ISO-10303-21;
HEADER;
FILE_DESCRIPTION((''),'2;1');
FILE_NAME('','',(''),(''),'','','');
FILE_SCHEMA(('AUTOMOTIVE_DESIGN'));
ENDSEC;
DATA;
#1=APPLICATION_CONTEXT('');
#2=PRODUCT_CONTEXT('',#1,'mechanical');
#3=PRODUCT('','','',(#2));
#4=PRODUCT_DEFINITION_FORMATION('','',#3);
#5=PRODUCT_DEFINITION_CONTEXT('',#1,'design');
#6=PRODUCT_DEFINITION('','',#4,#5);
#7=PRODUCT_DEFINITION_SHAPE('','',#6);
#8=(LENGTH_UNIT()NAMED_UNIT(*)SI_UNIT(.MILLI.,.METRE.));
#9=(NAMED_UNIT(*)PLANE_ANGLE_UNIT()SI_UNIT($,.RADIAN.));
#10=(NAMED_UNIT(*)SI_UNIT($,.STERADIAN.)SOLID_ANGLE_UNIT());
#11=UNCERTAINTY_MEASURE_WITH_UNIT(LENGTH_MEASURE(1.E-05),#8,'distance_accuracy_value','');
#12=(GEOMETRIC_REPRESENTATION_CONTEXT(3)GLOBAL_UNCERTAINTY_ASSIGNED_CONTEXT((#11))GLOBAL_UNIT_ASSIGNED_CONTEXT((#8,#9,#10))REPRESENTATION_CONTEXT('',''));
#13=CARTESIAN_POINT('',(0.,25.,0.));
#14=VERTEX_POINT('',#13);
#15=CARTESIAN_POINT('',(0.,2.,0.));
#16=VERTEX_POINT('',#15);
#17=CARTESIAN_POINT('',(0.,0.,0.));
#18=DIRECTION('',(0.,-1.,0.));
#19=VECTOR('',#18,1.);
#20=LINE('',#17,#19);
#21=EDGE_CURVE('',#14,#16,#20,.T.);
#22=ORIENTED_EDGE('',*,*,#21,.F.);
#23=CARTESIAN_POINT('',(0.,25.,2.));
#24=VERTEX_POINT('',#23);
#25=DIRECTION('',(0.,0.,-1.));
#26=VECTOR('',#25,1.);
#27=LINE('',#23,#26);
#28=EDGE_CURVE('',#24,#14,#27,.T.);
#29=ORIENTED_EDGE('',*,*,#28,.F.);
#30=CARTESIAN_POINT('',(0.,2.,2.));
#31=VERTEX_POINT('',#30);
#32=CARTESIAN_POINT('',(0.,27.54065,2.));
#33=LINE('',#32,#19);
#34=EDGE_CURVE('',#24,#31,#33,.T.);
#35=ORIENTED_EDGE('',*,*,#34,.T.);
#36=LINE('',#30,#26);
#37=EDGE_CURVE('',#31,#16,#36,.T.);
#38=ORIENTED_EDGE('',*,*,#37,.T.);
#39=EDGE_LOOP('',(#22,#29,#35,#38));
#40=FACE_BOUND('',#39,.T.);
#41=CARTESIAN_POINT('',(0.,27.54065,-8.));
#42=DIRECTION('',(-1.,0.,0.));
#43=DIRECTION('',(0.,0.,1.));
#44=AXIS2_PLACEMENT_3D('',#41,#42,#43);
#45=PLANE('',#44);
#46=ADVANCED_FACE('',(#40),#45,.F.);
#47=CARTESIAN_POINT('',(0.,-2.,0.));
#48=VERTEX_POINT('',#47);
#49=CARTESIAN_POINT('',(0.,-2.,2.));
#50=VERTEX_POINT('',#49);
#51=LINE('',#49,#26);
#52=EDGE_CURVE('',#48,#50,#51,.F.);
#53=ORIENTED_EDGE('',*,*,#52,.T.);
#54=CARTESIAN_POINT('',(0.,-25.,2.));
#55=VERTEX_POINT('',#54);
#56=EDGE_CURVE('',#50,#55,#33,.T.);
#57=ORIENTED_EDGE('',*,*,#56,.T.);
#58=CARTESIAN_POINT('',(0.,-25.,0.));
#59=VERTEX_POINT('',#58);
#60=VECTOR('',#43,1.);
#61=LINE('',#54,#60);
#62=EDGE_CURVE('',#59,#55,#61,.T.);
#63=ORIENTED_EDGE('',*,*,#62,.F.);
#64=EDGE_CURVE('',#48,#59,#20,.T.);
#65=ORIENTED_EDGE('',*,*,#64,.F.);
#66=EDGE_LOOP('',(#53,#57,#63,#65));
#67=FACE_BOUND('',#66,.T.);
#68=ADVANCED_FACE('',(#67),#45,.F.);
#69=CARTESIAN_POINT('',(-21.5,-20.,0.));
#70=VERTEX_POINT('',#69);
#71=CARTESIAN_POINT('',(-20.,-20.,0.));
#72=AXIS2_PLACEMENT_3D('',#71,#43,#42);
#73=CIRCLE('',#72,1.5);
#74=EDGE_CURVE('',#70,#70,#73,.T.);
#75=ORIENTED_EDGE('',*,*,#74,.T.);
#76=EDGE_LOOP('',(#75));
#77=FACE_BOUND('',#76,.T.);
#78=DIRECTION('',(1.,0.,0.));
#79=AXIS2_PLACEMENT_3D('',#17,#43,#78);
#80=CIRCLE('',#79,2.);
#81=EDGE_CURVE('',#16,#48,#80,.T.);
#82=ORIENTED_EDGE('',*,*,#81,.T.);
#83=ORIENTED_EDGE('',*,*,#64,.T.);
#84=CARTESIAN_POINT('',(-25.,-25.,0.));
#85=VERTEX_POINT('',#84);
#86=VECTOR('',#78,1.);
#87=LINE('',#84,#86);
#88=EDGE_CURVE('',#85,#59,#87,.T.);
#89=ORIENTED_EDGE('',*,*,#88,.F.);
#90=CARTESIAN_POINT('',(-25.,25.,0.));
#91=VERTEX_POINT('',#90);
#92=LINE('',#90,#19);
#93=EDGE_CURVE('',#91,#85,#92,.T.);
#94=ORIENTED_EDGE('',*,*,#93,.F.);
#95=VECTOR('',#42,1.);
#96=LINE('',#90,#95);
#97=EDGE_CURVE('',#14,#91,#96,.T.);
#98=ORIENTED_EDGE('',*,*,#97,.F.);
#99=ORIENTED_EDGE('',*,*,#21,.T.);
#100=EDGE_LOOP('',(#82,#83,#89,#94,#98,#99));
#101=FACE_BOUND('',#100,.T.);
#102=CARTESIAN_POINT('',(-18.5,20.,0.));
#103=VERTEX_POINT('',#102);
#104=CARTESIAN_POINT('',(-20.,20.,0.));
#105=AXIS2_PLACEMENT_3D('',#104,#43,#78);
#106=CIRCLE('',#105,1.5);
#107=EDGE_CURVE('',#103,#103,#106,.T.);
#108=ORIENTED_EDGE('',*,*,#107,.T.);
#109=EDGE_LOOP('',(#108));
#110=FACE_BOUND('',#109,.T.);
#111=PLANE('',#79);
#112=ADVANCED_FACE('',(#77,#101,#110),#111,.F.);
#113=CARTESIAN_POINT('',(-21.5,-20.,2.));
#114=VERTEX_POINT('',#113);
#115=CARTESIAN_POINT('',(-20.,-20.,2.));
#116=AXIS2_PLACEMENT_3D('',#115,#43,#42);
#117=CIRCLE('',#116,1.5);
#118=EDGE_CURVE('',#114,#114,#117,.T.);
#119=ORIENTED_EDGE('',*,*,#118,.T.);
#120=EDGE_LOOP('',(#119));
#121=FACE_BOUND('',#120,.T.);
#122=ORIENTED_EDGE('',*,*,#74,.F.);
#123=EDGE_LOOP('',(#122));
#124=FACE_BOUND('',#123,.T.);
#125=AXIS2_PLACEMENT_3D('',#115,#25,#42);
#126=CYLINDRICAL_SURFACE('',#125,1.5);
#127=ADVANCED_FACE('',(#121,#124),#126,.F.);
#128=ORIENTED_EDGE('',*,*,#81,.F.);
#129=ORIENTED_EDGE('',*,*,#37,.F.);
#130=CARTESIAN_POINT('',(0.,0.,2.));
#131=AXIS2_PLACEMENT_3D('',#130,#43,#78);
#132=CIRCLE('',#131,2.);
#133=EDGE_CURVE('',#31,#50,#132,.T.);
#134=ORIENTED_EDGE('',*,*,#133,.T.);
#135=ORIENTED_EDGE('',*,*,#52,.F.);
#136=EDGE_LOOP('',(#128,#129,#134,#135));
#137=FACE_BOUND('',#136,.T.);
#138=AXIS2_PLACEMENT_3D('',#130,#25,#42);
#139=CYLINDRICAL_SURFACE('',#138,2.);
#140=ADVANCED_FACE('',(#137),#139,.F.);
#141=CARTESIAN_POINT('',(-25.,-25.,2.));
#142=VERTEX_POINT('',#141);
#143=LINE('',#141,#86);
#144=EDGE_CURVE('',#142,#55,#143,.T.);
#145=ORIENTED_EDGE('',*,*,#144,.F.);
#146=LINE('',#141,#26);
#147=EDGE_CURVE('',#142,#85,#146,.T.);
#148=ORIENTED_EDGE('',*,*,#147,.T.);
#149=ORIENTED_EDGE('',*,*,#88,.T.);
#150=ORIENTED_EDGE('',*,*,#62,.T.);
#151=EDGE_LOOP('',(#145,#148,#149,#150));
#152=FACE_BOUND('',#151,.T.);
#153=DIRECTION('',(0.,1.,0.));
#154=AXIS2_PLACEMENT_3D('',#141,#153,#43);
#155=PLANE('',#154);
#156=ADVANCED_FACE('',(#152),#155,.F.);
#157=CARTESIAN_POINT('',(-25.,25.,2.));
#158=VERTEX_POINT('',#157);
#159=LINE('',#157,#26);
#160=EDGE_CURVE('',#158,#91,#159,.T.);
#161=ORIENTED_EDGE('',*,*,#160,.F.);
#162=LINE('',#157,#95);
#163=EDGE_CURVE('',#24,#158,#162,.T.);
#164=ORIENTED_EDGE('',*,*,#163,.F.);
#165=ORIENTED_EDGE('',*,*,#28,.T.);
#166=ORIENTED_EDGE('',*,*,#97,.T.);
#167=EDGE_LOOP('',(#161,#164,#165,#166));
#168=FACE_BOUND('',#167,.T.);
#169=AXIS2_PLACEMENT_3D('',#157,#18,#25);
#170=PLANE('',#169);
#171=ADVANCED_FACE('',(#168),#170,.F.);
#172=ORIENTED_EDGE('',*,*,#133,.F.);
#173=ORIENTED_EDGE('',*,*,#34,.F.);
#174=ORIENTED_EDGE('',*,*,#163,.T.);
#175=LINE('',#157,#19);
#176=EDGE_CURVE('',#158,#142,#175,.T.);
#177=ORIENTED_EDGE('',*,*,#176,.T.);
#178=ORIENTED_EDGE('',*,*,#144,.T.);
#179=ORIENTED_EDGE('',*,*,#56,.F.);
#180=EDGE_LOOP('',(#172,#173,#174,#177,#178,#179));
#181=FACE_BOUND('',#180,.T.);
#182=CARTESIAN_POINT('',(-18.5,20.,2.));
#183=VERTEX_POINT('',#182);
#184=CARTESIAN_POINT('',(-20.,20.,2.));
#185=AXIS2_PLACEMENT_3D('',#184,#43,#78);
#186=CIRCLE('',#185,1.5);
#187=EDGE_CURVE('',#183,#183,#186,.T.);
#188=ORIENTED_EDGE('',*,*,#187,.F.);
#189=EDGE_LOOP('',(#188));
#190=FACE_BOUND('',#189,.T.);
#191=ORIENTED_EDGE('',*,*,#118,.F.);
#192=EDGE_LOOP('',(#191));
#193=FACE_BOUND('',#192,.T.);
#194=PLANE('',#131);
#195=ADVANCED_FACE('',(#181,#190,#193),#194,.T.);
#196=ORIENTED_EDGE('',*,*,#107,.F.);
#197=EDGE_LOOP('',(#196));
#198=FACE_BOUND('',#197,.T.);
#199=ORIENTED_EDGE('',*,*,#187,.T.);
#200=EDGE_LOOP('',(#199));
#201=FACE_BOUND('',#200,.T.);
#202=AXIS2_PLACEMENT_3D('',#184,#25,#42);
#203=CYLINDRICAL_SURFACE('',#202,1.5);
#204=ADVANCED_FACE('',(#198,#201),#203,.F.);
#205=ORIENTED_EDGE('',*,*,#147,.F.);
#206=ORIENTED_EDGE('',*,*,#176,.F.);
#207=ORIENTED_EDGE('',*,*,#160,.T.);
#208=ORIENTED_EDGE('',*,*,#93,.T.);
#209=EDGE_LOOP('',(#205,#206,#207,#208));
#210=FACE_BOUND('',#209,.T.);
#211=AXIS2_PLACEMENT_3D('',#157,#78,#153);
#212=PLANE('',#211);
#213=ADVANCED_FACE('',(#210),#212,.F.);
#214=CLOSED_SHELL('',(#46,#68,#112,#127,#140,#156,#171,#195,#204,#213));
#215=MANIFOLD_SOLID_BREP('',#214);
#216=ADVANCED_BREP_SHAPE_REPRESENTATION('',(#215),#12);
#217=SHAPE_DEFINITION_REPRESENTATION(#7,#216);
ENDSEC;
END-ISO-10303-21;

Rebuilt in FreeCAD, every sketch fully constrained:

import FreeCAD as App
import Part
import Sketcher
from FreeCAD import Vector

doc = App.newDocument("Part")
params = doc.addObject("Spreadsheet::Sheet", "Params")
for row, (alias, value) in enumerate([
    ("sketch1_diameter", "3 mm"),
    ("sketch1_diameter2", "4 mm"),
    ("sketch1_width", "50 mm"),
    ("pad1_length", "2 mm"),
    ("pocket1_length", "10 mm"),
], start=1):
    params.set(f"A{row}", alias)
    params.set(f"B{row}", "=" + value)
    params.setAlias(f"B{row}", alias)

body = doc.addObject("PartDesign::Body", "Body")

sketch1 = doc.addObject("Sketcher::SketchObject", "Sketch")
body.addObject(sketch1)
sketch1.AttachmentSupport = (doc.XY_Plane, [""])
sketch1.MapMode = "FlatFace"
sketch1.addGeometry([
    Part.LineSegment(Vector(-25, 25, 0), Vector(-25, -25, 0)),
    Part.LineSegment(Vector(-25, -25, 0), Vector(25, -25, 0)),
    Part.LineSegment(Vector(25, -25, 0), Vector(25, 25, 0)),
    Part.LineSegment(Vector(25, 25, 0), Vector(-25, 25, 0)),
    Part.Circle(Vector(-20, -20, 0), Vector(0, 0, 1), 1.5),
    Part.Circle(Vector(20, -20, 0), Vector(0, 0, 1), 1.5),
    Part.Circle(Vector(-20, 20, 0), Vector(0, 0, 1), 1.5),
    Part.Circle(Vector(0, 0, 0), Vector(0, 0, 1), 2),
    Part.Circle(Vector(20, 20, 0), Vector(0, 0, 1), 1.5),
], False)
sketch1.addConstraint([
    Sketcher.Constraint("Coincident", 0, 2, 1, 1),
    Sketcher.Constraint("Coincident", 1, 2, 2, 1),
    Sketcher.Constraint("Coincident", 2, 2, 3, 1),
    Sketcher.Constraint("Coincident", 3, 2, 0, 1),
    Sketcher.Constraint("Vertical", 0),
    Sketcher.Constraint("Horizontal", 1),
    Sketcher.Constraint("Vertical", 2),
    Sketcher.Constraint("Horizontal", 3),
    Sketcher.Constraint("Coincident", 7, 3, -1, 1),
    Sketcher.Constraint("Equal", 4, 5),
    Sketcher.Constraint("Equal", 5, 6),
    Sketcher.Constraint("Equal", 6, 8),
    Sketcher.Constraint("Symmetric", 5, 3, 6, 3, -1, 1),
    Sketcher.Constraint("Symmetric", 4, 3, 8, 3, -1, 1),
    Sketcher.Constraint("Symmetric", 0, 2, 2, 2, -1, 1),
    Sketcher.Constraint("Symmetric", 4, 3, 5, 3, -2),
    Sketcher.Constraint("Equal", 3, 0),
    Sketcher.Constraint("Diameter", 4, 3.0),
    Sketcher.Constraint("Diameter", 7, 4.0),
    Sketcher.Constraint("DistanceX", 1, 1, 1, 2, 50.0),
    Sketcher.Constraint("DistanceX", 4, 3, -1, 1, 20.0),
    Sketcher.Constraint("DistanceY", 4, 3, -1, 1, 20.0),
])
sketch1.setExpression("Constraints[17]", "Params.sketch1_diameter")
sketch1.setExpression("Constraints[18]", "Params.sketch1_diameter2")
sketch1.setExpression("Constraints[19]", "Params.sketch1_width")
pad1 = doc.addObject("PartDesign::Pad", "Pad")
body.addObject(pad1)
pad1.Profile = sketch1
pad1.setExpression("Length", "Params.pad1_length")

sketch2 = doc.addObject("Sketcher::SketchObject", "Sketch001")
body.addObject(sketch2)
sketch2.AttachmentSupport = (doc.XY_Plane, [""])
sketch2.MapMode = "FlatFace"
sketch2.AttachmentOffset = App.Placement(Vector(0, 0, 2), App.Rotation())
sketch2.addGeometry([
    Part.LineSegment(Vector(0, 28, 0), Vector(0, -28, 0)),
    Part.LineSegment(Vector(0, -28, 0), Vector(34, -28, 0)),
    Part.LineSegment(Vector(34, -28, 0), Vector(34, 28, 0)),
    Part.LineSegment(Vector(34, 28, 0), Vector(0, 28, 0)),
], False)
sketch2.addConstraint([
    Sketcher.Constraint("Coincident", 0, 2, 1, 1),
    Sketcher.Constraint("Coincident", 1, 2, 2, 1),
    Sketcher.Constraint("Coincident", 2, 2, 3, 1),
    Sketcher.Constraint("Coincident", 3, 2, 0, 1),
    Sketcher.Constraint("Vertical", 0),
    Sketcher.Constraint("Horizontal", 1),
    Sketcher.Constraint("Vertical", 2),
    Sketcher.Constraint("Horizontal", 3),
    Sketcher.Constraint("PointOnObject", 0, 2, -2),
    Sketcher.Constraint("DistanceX", 1, 1, 1, 2, 33.603168),
    Sketcher.Constraint("DistanceY", 0, 2, 0, 1, 55.181673),
    Sketcher.Constraint("DistanceY", -1, 1, 2, 2, 27.54065),
])
pocket1 = doc.addObject("PartDesign::Pocket", "Pocket")
body.addObject(pocket1)
pocket1.Profile = sketch2
pocket1.setExpression("Length", "Params.pocket1_length")

doc.recompute()
